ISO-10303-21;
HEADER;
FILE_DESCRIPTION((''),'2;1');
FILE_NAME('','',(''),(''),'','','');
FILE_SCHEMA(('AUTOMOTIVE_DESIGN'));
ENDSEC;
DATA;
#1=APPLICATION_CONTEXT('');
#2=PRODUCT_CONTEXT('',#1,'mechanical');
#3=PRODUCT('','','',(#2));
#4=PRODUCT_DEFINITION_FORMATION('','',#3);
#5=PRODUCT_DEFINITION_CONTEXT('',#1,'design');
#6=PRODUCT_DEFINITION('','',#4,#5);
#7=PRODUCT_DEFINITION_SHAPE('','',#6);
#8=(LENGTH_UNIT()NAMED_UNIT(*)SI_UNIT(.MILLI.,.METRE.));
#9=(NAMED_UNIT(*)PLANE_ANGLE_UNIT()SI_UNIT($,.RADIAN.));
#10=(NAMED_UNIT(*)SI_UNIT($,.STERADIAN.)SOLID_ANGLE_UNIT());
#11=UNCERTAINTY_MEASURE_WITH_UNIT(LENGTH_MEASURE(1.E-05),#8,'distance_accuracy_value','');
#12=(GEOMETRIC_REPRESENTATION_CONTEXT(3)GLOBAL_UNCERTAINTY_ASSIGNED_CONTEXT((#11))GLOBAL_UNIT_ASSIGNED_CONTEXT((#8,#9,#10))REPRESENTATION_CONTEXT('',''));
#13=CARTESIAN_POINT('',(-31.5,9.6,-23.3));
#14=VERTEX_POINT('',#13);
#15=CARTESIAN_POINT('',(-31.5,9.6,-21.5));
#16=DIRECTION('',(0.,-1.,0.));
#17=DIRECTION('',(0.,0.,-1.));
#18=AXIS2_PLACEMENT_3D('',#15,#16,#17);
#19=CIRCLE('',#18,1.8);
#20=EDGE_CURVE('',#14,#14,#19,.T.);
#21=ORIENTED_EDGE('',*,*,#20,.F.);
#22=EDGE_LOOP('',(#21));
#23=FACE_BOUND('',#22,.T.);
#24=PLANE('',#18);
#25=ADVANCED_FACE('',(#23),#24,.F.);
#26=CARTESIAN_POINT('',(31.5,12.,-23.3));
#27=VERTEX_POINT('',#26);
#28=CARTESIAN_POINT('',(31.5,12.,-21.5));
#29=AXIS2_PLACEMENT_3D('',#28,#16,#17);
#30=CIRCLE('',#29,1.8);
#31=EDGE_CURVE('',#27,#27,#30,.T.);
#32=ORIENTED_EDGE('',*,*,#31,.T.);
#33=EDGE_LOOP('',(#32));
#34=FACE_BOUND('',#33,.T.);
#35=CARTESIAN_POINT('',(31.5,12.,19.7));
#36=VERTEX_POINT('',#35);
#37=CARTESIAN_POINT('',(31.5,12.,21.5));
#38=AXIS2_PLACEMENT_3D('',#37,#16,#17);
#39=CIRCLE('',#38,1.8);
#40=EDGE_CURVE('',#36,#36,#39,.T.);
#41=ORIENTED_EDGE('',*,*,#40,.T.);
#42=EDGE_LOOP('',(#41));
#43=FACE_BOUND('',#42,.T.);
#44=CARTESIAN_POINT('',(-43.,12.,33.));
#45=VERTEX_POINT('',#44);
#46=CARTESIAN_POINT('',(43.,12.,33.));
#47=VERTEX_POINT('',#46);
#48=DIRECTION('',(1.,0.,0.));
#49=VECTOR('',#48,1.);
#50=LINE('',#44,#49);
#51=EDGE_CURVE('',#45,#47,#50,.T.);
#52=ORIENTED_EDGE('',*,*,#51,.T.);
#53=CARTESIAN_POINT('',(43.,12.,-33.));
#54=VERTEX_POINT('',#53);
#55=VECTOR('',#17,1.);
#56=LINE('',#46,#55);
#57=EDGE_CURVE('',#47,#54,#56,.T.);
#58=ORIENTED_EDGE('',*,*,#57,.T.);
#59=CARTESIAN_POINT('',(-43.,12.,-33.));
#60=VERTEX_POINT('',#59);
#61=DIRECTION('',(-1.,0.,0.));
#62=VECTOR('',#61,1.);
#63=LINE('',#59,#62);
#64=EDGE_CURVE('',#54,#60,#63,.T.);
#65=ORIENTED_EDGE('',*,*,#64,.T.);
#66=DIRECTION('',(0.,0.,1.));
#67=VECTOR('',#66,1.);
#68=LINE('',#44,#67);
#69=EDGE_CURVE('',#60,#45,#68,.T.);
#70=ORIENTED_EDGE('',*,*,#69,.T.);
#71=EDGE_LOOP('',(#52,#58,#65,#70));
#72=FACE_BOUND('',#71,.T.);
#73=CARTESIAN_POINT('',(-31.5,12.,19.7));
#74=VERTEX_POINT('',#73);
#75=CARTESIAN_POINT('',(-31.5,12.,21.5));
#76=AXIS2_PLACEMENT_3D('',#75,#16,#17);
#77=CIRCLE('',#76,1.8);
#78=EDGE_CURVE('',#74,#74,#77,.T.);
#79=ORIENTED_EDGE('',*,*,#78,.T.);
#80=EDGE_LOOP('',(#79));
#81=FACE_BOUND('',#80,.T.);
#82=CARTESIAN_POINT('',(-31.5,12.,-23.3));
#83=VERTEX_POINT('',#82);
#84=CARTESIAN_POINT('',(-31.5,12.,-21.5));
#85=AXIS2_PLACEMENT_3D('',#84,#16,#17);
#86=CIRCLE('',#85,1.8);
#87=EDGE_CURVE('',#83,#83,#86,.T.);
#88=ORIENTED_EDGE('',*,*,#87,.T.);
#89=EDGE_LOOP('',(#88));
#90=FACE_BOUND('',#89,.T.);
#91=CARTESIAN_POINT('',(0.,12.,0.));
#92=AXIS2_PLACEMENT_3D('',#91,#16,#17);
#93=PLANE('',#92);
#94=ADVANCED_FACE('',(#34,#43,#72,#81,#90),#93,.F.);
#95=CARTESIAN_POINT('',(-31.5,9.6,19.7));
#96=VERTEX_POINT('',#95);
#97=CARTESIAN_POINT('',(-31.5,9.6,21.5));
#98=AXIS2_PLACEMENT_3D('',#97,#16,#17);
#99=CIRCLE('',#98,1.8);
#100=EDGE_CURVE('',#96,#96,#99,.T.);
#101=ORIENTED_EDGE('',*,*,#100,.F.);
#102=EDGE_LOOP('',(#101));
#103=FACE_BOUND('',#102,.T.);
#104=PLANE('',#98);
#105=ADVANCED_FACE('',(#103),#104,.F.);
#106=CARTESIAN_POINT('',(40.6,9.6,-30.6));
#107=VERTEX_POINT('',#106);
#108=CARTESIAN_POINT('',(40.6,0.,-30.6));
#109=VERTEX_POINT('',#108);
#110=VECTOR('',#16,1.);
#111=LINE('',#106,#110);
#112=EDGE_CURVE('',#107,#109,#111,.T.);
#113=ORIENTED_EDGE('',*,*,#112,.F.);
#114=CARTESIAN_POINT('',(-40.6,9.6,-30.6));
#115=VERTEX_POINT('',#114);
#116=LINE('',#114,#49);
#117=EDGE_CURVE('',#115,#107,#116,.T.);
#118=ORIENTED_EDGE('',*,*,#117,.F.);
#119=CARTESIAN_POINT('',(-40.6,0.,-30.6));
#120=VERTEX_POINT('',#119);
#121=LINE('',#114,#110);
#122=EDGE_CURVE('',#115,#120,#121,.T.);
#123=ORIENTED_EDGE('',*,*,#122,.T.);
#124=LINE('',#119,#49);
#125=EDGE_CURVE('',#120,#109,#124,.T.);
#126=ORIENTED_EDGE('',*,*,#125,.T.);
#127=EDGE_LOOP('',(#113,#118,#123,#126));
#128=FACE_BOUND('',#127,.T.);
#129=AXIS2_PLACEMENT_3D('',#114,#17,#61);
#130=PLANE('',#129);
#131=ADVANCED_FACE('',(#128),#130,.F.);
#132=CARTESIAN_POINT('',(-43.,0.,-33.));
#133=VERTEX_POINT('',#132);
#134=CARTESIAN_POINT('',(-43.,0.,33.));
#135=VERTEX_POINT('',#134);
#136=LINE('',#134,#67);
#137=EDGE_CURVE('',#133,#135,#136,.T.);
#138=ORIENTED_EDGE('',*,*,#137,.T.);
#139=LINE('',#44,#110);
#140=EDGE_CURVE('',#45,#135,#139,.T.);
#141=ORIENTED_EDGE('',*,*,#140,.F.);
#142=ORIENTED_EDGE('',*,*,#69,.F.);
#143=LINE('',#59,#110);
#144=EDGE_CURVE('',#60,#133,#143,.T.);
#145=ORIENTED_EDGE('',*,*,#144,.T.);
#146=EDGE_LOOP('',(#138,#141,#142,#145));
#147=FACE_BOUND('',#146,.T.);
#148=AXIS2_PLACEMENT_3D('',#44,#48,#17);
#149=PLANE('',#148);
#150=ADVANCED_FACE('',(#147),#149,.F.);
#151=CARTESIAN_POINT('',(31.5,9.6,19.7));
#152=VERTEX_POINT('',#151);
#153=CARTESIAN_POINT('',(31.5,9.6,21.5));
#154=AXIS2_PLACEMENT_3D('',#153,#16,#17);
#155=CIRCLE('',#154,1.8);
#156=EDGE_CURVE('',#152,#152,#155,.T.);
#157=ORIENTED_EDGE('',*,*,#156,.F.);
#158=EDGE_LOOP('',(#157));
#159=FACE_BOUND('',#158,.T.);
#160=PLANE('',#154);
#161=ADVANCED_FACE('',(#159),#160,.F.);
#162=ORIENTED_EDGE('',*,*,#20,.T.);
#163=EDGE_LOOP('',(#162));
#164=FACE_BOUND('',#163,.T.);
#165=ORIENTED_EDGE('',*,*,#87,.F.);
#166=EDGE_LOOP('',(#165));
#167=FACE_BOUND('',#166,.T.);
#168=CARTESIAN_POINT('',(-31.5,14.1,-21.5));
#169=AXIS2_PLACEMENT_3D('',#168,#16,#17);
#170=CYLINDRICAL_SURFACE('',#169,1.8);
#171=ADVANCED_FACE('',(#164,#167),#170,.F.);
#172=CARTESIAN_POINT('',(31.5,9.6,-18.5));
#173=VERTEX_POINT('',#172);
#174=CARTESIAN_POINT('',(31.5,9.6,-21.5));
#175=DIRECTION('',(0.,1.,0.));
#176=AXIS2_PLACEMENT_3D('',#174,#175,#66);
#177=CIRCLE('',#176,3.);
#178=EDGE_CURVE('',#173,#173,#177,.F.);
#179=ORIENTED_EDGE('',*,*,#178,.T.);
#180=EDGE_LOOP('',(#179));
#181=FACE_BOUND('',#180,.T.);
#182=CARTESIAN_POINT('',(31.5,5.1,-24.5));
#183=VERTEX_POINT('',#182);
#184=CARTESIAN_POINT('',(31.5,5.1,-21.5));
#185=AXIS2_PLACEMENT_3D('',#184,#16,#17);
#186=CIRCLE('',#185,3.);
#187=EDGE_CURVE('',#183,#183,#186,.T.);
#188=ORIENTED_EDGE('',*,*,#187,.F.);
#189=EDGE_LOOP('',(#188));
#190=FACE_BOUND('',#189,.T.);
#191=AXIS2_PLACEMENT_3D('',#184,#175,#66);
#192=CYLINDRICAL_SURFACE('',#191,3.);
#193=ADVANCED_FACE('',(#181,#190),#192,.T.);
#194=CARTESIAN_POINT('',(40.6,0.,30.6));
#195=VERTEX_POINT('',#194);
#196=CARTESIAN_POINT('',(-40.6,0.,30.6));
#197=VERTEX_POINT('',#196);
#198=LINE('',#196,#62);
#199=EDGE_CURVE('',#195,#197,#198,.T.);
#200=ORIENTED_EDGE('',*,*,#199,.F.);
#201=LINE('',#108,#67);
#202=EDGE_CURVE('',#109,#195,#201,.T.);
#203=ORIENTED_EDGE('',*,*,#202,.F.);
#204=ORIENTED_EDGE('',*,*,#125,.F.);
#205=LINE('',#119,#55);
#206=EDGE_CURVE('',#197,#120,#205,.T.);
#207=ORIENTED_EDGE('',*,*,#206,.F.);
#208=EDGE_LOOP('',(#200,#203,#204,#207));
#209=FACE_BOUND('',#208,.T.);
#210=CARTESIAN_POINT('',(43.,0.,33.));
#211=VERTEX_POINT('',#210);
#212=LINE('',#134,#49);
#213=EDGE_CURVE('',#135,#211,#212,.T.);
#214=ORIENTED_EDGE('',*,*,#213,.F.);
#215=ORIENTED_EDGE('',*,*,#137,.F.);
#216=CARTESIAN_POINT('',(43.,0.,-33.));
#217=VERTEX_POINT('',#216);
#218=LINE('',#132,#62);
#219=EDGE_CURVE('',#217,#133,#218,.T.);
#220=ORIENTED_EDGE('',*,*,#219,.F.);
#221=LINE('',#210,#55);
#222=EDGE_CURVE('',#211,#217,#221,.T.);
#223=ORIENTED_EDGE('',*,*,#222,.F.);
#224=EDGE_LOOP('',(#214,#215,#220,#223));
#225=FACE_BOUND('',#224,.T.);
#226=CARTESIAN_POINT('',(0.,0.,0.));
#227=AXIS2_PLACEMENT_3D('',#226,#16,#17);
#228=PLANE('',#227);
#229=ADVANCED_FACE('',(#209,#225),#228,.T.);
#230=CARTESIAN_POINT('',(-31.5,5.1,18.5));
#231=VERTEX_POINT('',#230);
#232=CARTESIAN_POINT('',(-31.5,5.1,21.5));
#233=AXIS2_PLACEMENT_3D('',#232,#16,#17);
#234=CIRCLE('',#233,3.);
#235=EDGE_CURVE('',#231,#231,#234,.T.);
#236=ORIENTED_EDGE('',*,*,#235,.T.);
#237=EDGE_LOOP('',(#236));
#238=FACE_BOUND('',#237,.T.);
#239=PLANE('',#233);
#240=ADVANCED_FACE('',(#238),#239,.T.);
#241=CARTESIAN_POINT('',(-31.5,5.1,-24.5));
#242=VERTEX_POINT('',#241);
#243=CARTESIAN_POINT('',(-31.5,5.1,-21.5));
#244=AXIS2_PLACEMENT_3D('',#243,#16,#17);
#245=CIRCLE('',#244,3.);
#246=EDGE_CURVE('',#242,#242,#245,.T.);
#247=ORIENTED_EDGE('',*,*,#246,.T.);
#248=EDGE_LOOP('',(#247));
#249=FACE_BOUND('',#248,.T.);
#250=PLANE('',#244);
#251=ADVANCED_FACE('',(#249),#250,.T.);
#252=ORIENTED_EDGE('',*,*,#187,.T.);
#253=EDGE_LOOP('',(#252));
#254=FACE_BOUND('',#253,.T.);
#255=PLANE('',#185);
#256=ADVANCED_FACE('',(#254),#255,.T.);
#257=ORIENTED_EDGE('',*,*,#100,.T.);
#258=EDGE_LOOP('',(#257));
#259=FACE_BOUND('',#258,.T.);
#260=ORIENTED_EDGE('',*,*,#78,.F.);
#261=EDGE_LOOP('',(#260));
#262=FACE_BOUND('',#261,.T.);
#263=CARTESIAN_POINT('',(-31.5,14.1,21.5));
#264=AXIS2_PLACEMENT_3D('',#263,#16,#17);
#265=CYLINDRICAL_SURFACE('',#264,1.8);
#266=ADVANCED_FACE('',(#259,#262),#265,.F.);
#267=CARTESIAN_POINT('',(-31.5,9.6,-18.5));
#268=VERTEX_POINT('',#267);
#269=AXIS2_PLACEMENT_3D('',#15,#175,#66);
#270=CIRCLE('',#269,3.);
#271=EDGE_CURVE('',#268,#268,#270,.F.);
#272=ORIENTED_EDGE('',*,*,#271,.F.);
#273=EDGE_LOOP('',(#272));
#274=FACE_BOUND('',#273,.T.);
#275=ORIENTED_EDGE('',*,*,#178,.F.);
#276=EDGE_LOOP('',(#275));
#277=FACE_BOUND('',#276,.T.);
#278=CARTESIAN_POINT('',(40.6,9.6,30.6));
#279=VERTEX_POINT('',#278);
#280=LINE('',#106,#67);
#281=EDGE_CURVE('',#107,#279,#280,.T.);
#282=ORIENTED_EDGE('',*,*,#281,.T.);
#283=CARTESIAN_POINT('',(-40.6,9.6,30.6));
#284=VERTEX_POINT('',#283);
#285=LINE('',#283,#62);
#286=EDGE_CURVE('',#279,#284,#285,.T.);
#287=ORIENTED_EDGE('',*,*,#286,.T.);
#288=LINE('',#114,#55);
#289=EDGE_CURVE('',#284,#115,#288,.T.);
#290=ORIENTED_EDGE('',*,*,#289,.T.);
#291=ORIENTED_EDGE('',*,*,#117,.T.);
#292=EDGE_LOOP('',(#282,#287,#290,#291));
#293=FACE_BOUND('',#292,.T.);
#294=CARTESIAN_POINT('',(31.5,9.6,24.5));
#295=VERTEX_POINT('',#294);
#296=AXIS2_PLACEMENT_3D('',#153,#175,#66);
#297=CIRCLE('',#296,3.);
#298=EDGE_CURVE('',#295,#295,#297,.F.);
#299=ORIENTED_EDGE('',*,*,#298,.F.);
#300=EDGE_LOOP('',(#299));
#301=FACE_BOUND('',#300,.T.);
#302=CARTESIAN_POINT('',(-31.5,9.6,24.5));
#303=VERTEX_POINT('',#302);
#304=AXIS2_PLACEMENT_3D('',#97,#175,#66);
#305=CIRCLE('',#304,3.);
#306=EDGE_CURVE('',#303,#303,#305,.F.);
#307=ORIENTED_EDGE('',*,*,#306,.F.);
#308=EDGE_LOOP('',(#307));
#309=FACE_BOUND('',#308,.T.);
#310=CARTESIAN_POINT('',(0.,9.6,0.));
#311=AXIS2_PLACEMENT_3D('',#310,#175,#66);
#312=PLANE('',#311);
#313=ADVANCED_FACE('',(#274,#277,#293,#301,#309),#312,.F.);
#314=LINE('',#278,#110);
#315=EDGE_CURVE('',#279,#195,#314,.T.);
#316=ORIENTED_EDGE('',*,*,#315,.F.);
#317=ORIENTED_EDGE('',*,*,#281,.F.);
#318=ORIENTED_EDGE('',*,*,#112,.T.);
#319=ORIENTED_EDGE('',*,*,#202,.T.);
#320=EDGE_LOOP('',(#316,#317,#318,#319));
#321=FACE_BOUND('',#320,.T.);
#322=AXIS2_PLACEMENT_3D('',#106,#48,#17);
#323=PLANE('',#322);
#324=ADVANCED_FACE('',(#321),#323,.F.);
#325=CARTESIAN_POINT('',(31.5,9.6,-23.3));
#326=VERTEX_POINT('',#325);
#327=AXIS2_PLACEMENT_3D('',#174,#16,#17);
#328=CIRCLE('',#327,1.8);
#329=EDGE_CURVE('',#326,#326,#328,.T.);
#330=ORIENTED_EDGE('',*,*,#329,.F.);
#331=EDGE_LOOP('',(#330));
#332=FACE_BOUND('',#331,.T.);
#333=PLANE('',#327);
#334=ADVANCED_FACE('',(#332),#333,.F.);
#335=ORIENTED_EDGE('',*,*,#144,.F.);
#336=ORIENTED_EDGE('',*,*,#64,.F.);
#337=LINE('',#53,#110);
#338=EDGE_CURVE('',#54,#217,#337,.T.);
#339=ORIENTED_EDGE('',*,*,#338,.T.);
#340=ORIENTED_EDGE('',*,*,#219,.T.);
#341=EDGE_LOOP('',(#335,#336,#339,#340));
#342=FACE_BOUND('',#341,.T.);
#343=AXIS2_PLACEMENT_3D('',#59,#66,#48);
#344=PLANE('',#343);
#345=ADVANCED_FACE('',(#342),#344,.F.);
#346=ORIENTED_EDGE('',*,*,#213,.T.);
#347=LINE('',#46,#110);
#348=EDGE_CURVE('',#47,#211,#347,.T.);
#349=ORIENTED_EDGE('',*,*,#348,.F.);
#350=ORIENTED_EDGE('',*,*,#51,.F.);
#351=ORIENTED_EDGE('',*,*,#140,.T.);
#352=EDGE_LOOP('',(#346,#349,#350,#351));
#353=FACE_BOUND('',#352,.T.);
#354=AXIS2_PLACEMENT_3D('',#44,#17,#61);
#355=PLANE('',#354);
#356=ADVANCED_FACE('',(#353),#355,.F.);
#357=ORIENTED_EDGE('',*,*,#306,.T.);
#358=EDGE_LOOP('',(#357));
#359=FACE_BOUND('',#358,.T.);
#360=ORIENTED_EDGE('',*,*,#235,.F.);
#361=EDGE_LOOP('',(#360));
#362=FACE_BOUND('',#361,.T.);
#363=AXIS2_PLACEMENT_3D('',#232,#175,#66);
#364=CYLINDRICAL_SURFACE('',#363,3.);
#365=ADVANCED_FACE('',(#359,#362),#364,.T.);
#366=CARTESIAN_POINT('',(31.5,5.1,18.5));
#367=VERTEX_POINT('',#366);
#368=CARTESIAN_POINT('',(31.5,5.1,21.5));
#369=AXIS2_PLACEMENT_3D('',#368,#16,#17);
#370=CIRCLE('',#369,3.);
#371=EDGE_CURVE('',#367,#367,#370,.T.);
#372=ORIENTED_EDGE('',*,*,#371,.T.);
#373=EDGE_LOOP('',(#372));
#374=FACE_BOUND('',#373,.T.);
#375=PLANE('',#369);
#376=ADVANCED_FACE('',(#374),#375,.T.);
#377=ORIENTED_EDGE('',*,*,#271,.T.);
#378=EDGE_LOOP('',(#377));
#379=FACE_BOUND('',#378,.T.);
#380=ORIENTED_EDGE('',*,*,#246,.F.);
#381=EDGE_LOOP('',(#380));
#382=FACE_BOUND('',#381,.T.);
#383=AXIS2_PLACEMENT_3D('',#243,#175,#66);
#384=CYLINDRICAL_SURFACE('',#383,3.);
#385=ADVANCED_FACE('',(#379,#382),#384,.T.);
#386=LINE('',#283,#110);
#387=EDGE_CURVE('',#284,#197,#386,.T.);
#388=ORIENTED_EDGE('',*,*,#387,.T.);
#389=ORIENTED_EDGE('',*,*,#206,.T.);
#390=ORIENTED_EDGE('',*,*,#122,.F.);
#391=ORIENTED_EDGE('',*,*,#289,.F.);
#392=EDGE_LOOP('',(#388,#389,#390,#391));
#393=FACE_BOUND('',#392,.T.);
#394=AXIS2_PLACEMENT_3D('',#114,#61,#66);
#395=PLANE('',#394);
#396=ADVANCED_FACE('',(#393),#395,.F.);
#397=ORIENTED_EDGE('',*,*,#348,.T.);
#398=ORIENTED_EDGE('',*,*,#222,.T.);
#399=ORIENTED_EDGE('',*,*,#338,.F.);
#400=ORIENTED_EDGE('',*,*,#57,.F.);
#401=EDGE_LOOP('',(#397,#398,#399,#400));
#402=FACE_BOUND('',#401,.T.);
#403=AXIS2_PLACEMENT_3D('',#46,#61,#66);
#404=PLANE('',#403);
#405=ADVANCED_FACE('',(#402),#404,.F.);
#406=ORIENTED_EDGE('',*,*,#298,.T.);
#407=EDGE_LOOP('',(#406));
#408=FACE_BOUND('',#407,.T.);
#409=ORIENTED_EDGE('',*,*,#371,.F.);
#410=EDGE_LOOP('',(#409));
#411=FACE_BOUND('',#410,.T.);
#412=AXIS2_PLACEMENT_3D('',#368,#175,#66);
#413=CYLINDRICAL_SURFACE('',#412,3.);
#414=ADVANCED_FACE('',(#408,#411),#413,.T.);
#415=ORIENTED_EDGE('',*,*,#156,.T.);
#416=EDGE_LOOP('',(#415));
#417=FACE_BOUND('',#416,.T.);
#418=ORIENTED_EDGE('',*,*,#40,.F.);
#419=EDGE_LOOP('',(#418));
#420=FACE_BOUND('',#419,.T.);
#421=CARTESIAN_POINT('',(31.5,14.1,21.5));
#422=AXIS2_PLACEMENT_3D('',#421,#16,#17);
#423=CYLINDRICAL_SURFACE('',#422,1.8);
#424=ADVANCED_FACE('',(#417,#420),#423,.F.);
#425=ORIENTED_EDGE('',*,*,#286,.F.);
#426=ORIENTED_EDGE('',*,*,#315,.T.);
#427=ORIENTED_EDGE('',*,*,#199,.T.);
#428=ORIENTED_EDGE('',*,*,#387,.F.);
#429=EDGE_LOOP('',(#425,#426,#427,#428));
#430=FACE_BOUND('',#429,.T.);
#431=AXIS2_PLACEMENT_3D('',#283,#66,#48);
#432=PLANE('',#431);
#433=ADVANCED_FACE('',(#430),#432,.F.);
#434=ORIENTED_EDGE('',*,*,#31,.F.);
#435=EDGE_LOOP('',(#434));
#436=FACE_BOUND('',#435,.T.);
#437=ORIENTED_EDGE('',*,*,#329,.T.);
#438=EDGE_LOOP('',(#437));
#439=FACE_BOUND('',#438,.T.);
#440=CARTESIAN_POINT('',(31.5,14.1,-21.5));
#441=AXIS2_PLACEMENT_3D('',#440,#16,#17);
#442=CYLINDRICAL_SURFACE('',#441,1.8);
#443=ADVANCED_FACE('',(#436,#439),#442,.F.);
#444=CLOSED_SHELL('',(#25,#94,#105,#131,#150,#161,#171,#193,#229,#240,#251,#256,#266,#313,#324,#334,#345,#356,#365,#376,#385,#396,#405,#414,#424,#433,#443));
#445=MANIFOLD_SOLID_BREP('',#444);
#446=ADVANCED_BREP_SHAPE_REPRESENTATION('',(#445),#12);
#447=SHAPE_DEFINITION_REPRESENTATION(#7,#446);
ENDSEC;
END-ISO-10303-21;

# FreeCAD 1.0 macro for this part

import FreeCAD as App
import Part
import Sketcher
from FreeCAD import Vector
Q = App.Units.Quantity


def add_polygon(sketch, points):
    """Adds a closed chain of lines whose ends are joined by coincident constraints."""
    first, n = sketch.GeometryCount, len(points)
    for a, b in zip(points, points[1:] + points[:1]):
        sketch.addGeometry(Part.LineSegment(App.Vector(*a, 0), App.Vector(*b, 0)), False)
    for i in range(n):
        sketch.addConstraint(Sketcher.Constraint("Coincident", first + i, 2, first + (i + 1) % n, 1))

doc = App.newDocument("Part")
body = doc.addObject("PartDesign::Body", "Body")

# Sketch on XZ plane
sketch1 = doc.addObject("Sketcher::SketchObject", "Sketch")
body.addObject(sketch1)
sketch1.AttachmentSupport = (doc.XZ_Plane, [""])
sketch1.MapMode = "FlatFace"
add_polygon(sketch1, [(-43, -33), (-43, 33), (43, 33), (43, -33)])  # lines 0-3
sketch1.addConstraint([
    Sketcher.Constraint("Vertical", 0),
    Sketcher.Constraint("Horizontal", 1),
    Sketcher.Constraint("Vertical", 2),
    Sketcher.Constraint("Horizontal", 3),
    Sketcher.Constraint("Symmetric", 0, 2, 2, 2, -1, 1),
    Sketcher.Constraint("DistanceX", 1, 1, 1, 2, Q("86 mm")),
    Sketcher.Constraint("DistanceY", 0, 1, 0, 2, Q("66 mm")),
])
pad1 = doc.addObject("PartDesign::Pad", "Pad")
body.addObject(pad1)
pad1.Profile = sketch1
pad1.Length = 12
pad1.Reversed = True

# Sketch on XZ plane
sketch2 = doc.addObject("Sketcher::SketchObject", "Sketch001")
body.addObject(sketch2)
sketch2.AttachmentSupport = (doc.XZ_Plane, [""])
sketch2.MapMode = "FlatFace"
add_polygon(sketch2, [(-40.6, 30.6), (-40.6, -30.6), (40.6, -30.6), (40.6, 30.6)])  # lines 0-3
sketch2.addConstraint([
    Sketcher.Constraint("Vertical", 0),
    Sketcher.Constraint("Horizontal", 1),
    Sketcher.Constraint("Vertical", 2),
    Sketcher.Constraint("Horizontal", 3),
    Sketcher.Constraint("Symmetric", 0, 2, 2, 2, -1, 1),
    Sketcher.Constraint("DistanceX", 1, 1, 1, 2, Q("81.2 mm")),
    Sketcher.Constraint("DistanceY", 0, 2, 0, 1, Q("61.2 mm")),
])
pocket1 = doc.addObject("PartDesign::Pocket", "Pocket")
body.addObject(pocket1)
pocket1.Profile = sketch2
pocket1.Length = 9.6

# Sketch on XZ plane
sketch3 = doc.addObject("Sketcher::SketchObject", "Sketch002")
body.addObject(sketch3)
sketch3.AttachmentSupport = (doc.XZ_Plane, [""])
sketch3.MapMode = "FlatFace"
sketch3.AttachmentOffset = App.Placement(Vector(0, 0, -9.6), App.Rotation())
sketch3.addGeometry([
    Part.Circle(Vector(-31.5, -21.5, 0), Vector(0, 0, 1), 3),
    Part.Circle(Vector(31.5, -21.5, 0), Vector(0, 0, 1), 3),
    Part.Circle(Vector(-31.5, 21.5, 0), Vector(0, 0, 1), 3),
    Part.Circle(Vector(31.5, 21.5, 0), Vector(0, 0, 1), 3),
], False)
sketch3.addConstraint([
    Sketcher.Constraint("Equal", 0, 1),
    Sketcher.Constraint("Equal", 1, 2),
    Sketcher.Constraint("Equal", 2, 3),
    Sketcher.Constraint("Symmetric", 1, 3, 2, 3, -1, 1),
    Sketcher.Constraint("Symmetric", 0, 3, 3, 3, -1, 1),
    Sketcher.Constraint("Symmetric", 0, 3, 1, 3, -2),
    Sketcher.Constraint("Diameter", 0, Q("6 mm")),
    Sketcher.Constraint("DistanceX", 0, 3, 1, 3, Q("63 mm")),
    Sketcher.Constraint("DistanceY", 0, 3, 2, 3, Q("43 mm")),
])
pad2 = doc.addObject("PartDesign::Pad", "Pad001")
body.addObject(pad2)
pad2.Profile = sketch3
pad2.Length = 4.5

# Sketch on XZ plane
sketch4 = doc.addObject("Sketcher::SketchObject", "Sketch003")
body.addObject(sketch4)
sketch4.AttachmentSupport = (doc.XZ_Plane, [""])
sketch4.MapMode = "FlatFace"
sketch4.AttachmentOffset = App.Placement(Vector(0, 0, -9.6), App.Rotation())
sketch4.addGeometry([
    Part.Circle(Vector(-31.5, -21.5, 0), Vector(0, 0, 1), 1.8),
    Part.Circle(Vector(31.5, -21.5, 0), Vector(0, 0, 1), 1.8),
    Part.Circle(Vector(-31.5, 21.5, 0), Vector(0, 0, 1), 1.8),
    Part.Circle(Vector(31.5, 21.5, 0), Vector(0, 0, 1), 1.8),
], False)
sketch4.addConstraint([
    Sketcher.Constraint("Equal", 0, 1),
    Sketcher.Constraint("Equal", 1, 2),
    Sketcher.Constraint("Equal", 2, 3),
    Sketcher.Constraint("Symmetric", 1, 3, 2, 3, -1, 1),
    Sketcher.Constraint("Symmetric", 0, 3, 3, 3, -1, 1),
    Sketcher.Constraint("Symmetric", 0, 3, 1, 3, -2),
    Sketcher.Constraint("Diameter", 0, Q("3.6 mm")),
    Sketcher.Constraint("DistanceX", 0, 3, 1, 3, Q("63 mm")),
    Sketcher.Constraint("DistanceY", 0, 3, 2, 3, Q("43 mm")),
])
pocket2 = doc.addObject("PartDesign::Pocket", "Pocket001")
body.addObject(pocket2)
pocket2.Profile = sketch4
pocket2.Length = 4.5

doc.recompute()
